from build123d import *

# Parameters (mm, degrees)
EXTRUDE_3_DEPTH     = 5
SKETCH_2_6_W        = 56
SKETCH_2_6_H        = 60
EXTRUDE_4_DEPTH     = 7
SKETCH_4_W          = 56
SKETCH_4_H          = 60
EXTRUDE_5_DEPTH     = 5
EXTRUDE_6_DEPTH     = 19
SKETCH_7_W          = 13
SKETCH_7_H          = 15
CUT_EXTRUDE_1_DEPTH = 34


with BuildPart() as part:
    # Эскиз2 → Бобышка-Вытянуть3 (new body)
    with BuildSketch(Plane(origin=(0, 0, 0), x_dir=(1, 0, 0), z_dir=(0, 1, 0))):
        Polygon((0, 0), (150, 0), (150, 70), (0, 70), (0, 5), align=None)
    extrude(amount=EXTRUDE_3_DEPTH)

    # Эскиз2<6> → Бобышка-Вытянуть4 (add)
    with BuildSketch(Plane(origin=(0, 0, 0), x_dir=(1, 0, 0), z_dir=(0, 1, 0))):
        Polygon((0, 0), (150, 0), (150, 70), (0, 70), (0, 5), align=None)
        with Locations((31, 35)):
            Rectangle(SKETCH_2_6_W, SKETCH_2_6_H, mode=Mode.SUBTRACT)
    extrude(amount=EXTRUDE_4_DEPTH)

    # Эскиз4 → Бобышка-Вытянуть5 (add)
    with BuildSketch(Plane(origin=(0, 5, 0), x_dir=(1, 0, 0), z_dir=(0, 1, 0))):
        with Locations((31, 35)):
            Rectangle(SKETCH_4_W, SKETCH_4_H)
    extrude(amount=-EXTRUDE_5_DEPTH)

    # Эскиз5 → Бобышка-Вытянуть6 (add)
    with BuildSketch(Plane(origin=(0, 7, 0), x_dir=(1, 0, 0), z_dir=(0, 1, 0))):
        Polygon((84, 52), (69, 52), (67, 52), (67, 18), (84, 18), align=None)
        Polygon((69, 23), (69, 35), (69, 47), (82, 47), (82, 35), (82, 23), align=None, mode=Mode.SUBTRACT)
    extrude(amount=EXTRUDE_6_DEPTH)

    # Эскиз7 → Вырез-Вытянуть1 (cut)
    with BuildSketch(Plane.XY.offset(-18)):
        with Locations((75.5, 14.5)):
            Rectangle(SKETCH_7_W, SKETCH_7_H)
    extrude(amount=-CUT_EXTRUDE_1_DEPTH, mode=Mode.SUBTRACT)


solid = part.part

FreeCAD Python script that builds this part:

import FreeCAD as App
import Part
import Sketcher

V = App.Vector


def add_polygon(sketch, points):
    """Adds a closed chain of lines whose ends are joined by coincident constraints."""
    first, n = sketch.GeometryCount, len(points)
    for a, b in zip(points, points[1:] + points[:1]):
        sketch.addGeometry(Part.LineSegment(App.Vector(*a, 0), App.Vector(*b, 0)), False)
    for i in range(n):
        sketch.addConstraint(Sketcher.Constraint("Coincident", first + i, 2, first + (i + 1) % n, 1))

doc = App.newDocument("Part")
body = doc.addObject("PartDesign::Body", "Body")

sketch1 = doc.addObject("Sketcher::SketchObject", "Sketch")
body.addObject(sketch1)
sketch1.AttachmentSupport = (doc.XZ_Plane, [""])
sketch1.MapMode = "FlatFace"
add_polygon(sketch1, [(0, 0), (150, 0), (150, -70), (0, -70)])
sketch1.addConstraint([
    Sketcher.Constraint("Horizontal", 0),
    Sketcher.Constraint("Vertical", 1),
    Sketcher.Constraint("Horizontal", 2),
    Sketcher.Constraint("Vertical", 3),
    Sketcher.Constraint("Coincident", 3, 2, -1, 1),
    Sketcher.Constraint("DistanceX", 0, 1, 0, 2, 150.0),
    Sketcher.Constraint("DistanceY", 1, 2, 1, 1, 70.0),
])
pad1 = doc.addObject("PartDesign::Pad", "Pad")
body.addObject(pad1)
pad1.Profile = sketch1
pad1.Length = 5
pad1.Reversed = True

sketch2 = doc.addObject("Sketcher::SketchObject", "Sketch001")
body.addObject(sketch2)
sketch2.AttachmentSupport = (doc.XZ_Plane, [""])
sketch2.MapMode = "FlatFace"
add_polygon(sketch2, [(0, 0), (150, 0), (150, -70), (0, -70)])
add_polygon(sketch2, [(59, -5), (3, -5), (3, -65), (59, -65)])
sketch2.addConstraint([
    Sketcher.Constraint("Horizontal", 0),
    Sketcher.Constraint("Vertical", 1),
    Sketcher.Constraint("Horizontal", 2),
    Sketcher.Constraint("Vertical", 3),
    Sketcher.Constraint("Horizontal", 4),
    Sketcher.Constraint("Vertical", 5),
    Sketcher.Constraint("Horizontal", 6),
    Sketcher.Constraint("Vertical", 7),
    Sketcher.Constraint("Coincident", 3, 2, -1, 1),
    Sketcher.Constraint("DistanceX", 0, 1, 0, 2, 150.0),
    Sketcher.Constraint("DistanceX", 4, 2, 4, 1, 56.0),
    Sketcher.Constraint("DistanceY", 1, 2, 1, 1, 70.0),
    Sketcher.Constraint("DistanceY", 5, 2, 5, 1, 60.0),
    Sketcher.Constraint("DistanceX", -1, 1, 4, 2, 3.0),
    Sketcher.Constraint("DistanceY", 4, 2, -1, 1, 5.0),
])
pad2 = doc.addObject("PartDesign::Pad", "Pad001")
body.addObject(pad2)
pad2.Profile = sketch2
pad2.Length = 7
pad2.Reversed = True

sketch3 = doc.addObject("Sketcher::SketchObject", "Sketch002")
body.addObject(sketch3)
sketch3.AttachmentSupport = (doc.XZ_Plane, [""])
sketch3.MapMode = "FlatFace"
sketch3.AttachmentOffset = App.Placement(V(0, 0, -5), App.Rotation())
add_polygon(sketch3, [(3, -65), (3, -5), (59, -5), (59, -65)])
sketch3.addConstraint([
    Sketcher.Constraint("Vertical", 0),
    Sketcher.Constraint("Horizontal", 1),
    Sketcher.Constraint("Vertical", 2),
    Sketcher.Constraint("Horizontal", 3),
    Sketcher.Constraint("DistanceX", 1, 1, 1, 2, 56.0),
    Sketcher.Constraint("DistanceY", 0, 1, 0, 2, 60.0),
    Sketcher.Constraint("DistanceX", -1, 1, 0, 2, 3.0),
    Sketcher.Constraint("DistanceY", 0, 2, -1, 1, 5.0),
])
pad3 = doc.addObject("PartDesign::Pad", "Pad002")
body.addObject(pad3)
pad3.Profile = sketch3
pad3.Length = 5

sketch4 = doc.addObject("Sketcher::SketchObject", "Sketch003")
body.addObject(sketch4)
sketch4.AttachmentSupport = (doc.XZ_Plane, [""])
sketch4.MapMode = "FlatFace"
sketch4.AttachmentOffset = App.Placement(V(0, 0, -7), App.Rotation())
add_polygon(sketch4, [(84, -52), (67, -52), (67, -18), (84, -18)])
add_polygon(sketch4, [(82, -23), (69, -23), (69, -47), (82, -47)])
sketch4.addConstraint([
    Sketcher.Constraint("Horizontal", 0),
    Sketcher.Constraint("Vertical", 1),
    Sketcher.Constraint("Horizontal", 2),
    Sketcher.Constraint("Vertical", 3),
    Sketcher.Constraint("Horizontal", 4),
    Sketcher.Constraint("Vertical", 5),
    Sketcher.Constraint("Horizontal", 6),
    Sketcher.Constraint("Vertical", 7),
    Sketcher.Constraint("DistanceX", 0, 2, 0, 1, 17.0),
    Sketcher.Constraint("DistanceX", 4, 2, 4, 1, 13.0),
    Sketcher.Constraint("DistanceY", 1, 1, 1, 2, 34.0),
    Sketcher.Constraint("DistanceY", 5, 2, 5, 1, 24.0),
    Sketcher.Constraint("DistanceX", -1, 1, 0, 2, 67.0),
    Sketcher.Constraint("DistanceY", 0, 2, -1, 1, 52.0),
    Sketcher.Constraint("DistanceX", -1, 1, 4, 2, 69.0),
    Sketcher.Constraint("DistanceY", 4, 2, -1, 1, 23.0),
])
pad4 = doc.addObject("PartDesign::Pad", "Pad003")
body.addObject(pad4)
pad4.Profile = sketch4
pad4.Length = 19
pad4.Reversed = True

sketch5 = doc.addObject("Sketcher::SketchObject", "Sketch004")
body.addObject(sketch5)
sketch5.AttachmentSupport = (doc.XY_Plane, [""])
sketch5.MapMode = "FlatFace"
sketch5.AttachmentOffset = App.Placement(V(0, 0, -18), App.Rotation())
add_polygon(sketch5, [(69, 22), (69, 7), (82, 7), (82, 22)])
sketch5.addConstraint([
    Sketcher.Constraint("Vertical", 0),
    Sketcher.Constraint("Horizontal", 1),
    Sketcher.Constraint("Vertical", 2),
    Sketcher.Constraint("Horizontal", 3),
    Sketcher.Constraint("DistanceX", 1, 1, 1, 2, 13.0),
    Sketcher.Constraint("DistanceY", 0, 2, 0, 1, 15.0),
    Sketcher.Constraint("DistanceX", -1, 1, 0, 2, 69.0),
    Sketcher.Constraint("DistanceY", -1, 1, 0, 2, 7.0),
])
pocket1 = doc.addObject("PartDesign::Pocket", "Pocket")
body.addObject(pocket1)
pocket1.Profile = sketch5
pocket1.Length = 34

doc.recompute()
